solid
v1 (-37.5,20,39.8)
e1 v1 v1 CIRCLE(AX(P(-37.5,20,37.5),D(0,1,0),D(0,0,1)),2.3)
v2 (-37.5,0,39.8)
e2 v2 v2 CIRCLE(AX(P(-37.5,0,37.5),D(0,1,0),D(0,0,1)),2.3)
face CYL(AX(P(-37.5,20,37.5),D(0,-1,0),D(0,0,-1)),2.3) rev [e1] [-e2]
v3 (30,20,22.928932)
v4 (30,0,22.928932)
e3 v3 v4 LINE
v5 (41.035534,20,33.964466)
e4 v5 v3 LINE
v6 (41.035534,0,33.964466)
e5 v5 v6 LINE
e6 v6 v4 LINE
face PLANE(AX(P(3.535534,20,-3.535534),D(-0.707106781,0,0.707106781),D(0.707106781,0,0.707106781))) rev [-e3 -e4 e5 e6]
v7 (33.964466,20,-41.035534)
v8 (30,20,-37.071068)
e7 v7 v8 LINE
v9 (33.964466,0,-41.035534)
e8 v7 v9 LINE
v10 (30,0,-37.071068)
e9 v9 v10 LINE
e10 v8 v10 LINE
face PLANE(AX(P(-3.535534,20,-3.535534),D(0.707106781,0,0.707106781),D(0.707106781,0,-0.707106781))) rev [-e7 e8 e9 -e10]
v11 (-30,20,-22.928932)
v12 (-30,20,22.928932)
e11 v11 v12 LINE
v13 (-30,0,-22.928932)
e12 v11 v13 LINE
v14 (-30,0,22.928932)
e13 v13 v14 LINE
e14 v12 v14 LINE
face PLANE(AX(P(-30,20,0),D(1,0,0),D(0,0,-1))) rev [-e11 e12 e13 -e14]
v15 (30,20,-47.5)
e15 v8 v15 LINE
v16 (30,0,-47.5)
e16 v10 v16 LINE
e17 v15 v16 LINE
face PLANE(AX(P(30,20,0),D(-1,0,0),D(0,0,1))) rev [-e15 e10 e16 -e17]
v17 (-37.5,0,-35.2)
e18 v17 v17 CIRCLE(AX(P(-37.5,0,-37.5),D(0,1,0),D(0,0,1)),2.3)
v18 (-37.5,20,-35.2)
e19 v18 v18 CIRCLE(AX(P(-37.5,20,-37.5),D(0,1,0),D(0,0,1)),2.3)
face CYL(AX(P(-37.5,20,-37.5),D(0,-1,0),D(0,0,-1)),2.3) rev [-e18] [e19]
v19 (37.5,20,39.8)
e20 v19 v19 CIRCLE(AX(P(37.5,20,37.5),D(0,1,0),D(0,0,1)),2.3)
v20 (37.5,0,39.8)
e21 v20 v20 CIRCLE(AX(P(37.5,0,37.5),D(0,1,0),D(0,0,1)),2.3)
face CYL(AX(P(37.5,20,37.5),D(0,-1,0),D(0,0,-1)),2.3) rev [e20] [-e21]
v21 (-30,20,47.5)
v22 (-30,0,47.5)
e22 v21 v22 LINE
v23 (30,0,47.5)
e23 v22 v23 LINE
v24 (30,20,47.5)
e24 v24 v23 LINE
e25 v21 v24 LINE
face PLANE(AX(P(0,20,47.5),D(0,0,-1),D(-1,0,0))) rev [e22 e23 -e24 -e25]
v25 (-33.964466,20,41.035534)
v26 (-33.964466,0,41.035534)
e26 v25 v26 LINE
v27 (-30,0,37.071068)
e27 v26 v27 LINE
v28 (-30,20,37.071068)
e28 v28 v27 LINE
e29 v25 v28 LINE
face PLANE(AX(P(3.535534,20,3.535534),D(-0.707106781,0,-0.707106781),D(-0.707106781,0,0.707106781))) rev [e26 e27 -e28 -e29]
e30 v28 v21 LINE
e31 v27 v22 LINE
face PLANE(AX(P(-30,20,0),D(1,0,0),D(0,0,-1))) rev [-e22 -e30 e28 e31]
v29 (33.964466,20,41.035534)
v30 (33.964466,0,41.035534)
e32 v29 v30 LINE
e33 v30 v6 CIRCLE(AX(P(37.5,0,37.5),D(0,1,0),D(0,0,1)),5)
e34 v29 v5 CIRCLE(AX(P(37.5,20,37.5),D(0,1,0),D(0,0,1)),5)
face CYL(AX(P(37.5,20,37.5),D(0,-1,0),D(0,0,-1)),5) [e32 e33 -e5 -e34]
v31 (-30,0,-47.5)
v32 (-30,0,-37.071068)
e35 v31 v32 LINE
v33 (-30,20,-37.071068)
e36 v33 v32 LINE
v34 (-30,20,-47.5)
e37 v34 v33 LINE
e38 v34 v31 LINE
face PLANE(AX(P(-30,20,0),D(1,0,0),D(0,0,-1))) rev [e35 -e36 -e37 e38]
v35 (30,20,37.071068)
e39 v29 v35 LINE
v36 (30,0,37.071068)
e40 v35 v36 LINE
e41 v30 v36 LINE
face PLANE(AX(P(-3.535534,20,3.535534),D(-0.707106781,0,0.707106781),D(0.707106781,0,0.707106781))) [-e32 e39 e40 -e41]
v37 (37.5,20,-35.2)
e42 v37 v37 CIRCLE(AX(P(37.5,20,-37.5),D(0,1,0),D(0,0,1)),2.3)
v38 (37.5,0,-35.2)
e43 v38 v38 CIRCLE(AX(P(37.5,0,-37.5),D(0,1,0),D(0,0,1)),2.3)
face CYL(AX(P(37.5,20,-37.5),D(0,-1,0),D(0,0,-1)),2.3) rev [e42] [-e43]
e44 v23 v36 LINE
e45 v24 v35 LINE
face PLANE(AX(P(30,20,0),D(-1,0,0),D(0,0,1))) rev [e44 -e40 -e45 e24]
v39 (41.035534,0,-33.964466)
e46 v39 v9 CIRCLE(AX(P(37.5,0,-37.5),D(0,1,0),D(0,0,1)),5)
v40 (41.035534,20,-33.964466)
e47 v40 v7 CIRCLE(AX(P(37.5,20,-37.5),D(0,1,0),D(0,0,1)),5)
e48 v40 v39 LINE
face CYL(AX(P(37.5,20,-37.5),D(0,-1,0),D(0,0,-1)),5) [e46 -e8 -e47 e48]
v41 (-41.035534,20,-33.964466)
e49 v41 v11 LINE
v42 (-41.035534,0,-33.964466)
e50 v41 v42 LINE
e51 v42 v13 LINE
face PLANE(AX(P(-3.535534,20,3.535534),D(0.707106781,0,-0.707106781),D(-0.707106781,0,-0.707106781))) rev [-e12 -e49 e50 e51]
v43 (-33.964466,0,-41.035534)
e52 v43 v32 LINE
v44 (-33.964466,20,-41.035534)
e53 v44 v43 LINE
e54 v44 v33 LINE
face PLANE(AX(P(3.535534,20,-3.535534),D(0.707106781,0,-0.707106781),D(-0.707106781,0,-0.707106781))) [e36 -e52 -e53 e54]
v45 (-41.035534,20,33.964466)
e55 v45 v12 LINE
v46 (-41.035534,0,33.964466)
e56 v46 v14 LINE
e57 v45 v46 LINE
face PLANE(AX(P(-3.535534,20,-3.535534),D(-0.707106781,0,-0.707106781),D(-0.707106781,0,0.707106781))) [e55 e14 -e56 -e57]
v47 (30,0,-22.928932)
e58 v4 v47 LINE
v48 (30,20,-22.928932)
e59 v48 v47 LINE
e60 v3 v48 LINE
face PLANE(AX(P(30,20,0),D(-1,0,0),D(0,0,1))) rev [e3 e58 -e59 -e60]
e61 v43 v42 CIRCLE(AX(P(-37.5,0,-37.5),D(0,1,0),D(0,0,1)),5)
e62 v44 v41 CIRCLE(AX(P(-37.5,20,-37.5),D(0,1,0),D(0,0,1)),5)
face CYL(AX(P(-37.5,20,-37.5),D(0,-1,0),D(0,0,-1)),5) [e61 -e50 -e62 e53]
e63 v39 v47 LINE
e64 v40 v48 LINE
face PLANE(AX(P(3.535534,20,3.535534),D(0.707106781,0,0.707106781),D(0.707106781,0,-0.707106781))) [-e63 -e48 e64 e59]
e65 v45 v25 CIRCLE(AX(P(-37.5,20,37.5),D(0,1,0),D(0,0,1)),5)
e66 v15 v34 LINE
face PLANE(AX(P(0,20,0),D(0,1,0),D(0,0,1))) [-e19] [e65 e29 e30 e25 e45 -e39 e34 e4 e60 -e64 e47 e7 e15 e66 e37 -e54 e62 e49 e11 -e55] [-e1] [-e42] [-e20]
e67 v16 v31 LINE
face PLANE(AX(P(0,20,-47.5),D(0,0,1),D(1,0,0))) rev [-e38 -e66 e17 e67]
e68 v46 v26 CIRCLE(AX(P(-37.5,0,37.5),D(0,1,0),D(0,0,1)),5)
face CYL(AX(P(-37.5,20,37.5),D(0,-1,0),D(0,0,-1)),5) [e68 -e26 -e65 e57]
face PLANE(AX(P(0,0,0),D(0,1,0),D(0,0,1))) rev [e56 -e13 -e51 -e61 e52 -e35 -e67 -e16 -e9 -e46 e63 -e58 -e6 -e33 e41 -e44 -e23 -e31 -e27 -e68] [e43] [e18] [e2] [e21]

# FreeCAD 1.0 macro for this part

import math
import FreeCAD as App
import Part
import Sketcher

V = App.Vector
Q = App.Units.Quantity

doc = App.newDocument("Part")
body = doc.addObject("PartDesign::Body", "Body")

# Sketch on XZ plane
sketch1 = body.newObject("Sketcher::SketchObject", "Sketch")
sketch1.AttachmentSupport = (doc.getObject("XZ_Plane"), [""])
sketch1.MapMode = "FlatFace"
sketch1.addGeometry([
    Part.LineSegment(V(-30, -22.9, 0), V(-30, 22.9, 0)),  # 0
    Part.LineSegment(V(-30, 22.9, 0), V(-41, 34, 0)),  # 1
    Part.ArcOfCircle(Part.Circle(V(-37.5, 37.5, 0), V(0, 0, 1), 5), math.radians(45), math.radians(225)),  # 2
    Part.LineSegment(V(-34, 41, 0), V(-30, 37.1, 0)),  # 3
    Part.LineSegment(V(-30, 37.1, 0), V(-30, 47.5, 0)),  # 4
    Part.LineSegment(V(-30, 47.5, 0), V(30, 47.5, 0)),  # 5
    Part.LineSegment(V(30, 47.5, 0), V(30, 37.1, 0)),  # 6
    Part.LineSegment(V(30, 37.1, 0), V(34, 41, 0)),  # 7
    Part.ArcOfCircle(Part.Circle(V(37.5, 37.5, 0), V(0, 0, 1), 5), math.radians(0), math.radians(135)),  # 8
    Part.ArcOfCircle(Part.Circle(V(37.5, 37.5, 0), V(0, 0, 1), 5), math.radians(-45), math.radians(0)),  # 9
    Part.LineSegment(V(41, 34, 0), V(30, 22.9, 0)),  # 10
    Part.LineSegment(V(30, 22.9, 0), V(30, -22.9, 0)),  # 11
    Part.LineSegment(V(30, -22.9, 0), V(41, -34, 0)),  # 12
    Part.ArcOfCircle(Part.Circle(V(37.5, -37.5, 0), V(0, 0, 1), 5), math.radians(0), math.radians(45)),  # 13
    Part.ArcOfCircle(Part.Circle(V(37.5, -37.5, 0), V(0, 0, 1), 5), math.radians(-135), math.radians(0)),  # 14
    Part.LineSegment(V(34, -41, 0), V(30, -37.1, 0)),  # 15
    Part.LineSegment(V(30, -37.1, 0), V(30, -47.5, 0)),  # 16
    Part.LineSegment(V(30, -47.5, 0), V(-30, -47.5, 0)),  # 17
    Part.LineSegment(V(-30, -47.5, 0), V(-30, -37.1, 0)),  # 18
    Part.LineSegment(V(-30, -37.1, 0), V(-34, -41, 0)),  # 19
    Part.ArcOfCircle(Part.Circle(V(-37.5, -37.5, 0), V(0, 0, 1), 5), math.radians(135), math.radians(315)),  # 20
    Part.LineSegment(V(-41, -34, 0), V(-30, -22.9, 0)),  # 21
    Part.ArcOfCircle(Part.Circle(V(-37.5, -37.5, 0), V(0, 0, 1), 2.3), math.radians(0), math.radians(135)),  # 22
    Part.ArcOfCircle(Part.Circle(V(-37.5, -37.5, 0), V(0, 0, 1), 2.3), math.radians(135), math.radians(315)),  # 23
    Part.ArcOfCircle(Part.Circle(V(-37.5, -37.5, 0), V(0, 0, 1), 2.3), math.radians(-45), math.radians(0)),  # 24
    Part.ArcOfCircle(Part.Circle(V(-37.5, 37.5, 0), V(0, 0, 1), 2.3), math.radians(0), math.radians(45)),  # 25
    Part.ArcOfCircle(Part.Circle(V(-37.5, 37.5, 0), V(0, 0, 1), 2.3), math.radians(45), math.radians(225)),  # 26
    Part.ArcOfCircle(Part.Circle(V(-37.5, 37.5, 0), V(0, 0, 1), 2.3), math.radians(-135), math.radians(0)),  # 27
    Part.ArcOfCircle(Part.Circle(V(37.5, 37.5, 0), V(0, 0, 1), 2.3), math.radians(0), math.radians(135)),  # 28
    Part.ArcOfCircle(Part.Circle(V(37.5, 37.5, 0), V(0, 0, 1), 2.3), math.radians(135), math.radians(315)),  # 29
    Part.ArcOfCircle(Part.Circle(V(37.5, 37.5, 0), V(0, 0, 1), 2.3), math.radians(-45), math.radians(0)),  # 30
    Part.ArcOfCircle(Part.Circle(V(37.5, -37.5, 0), V(0, 0, 1), 2.3), math.radians(45), math.radians(225)),  # 31
    Part.ArcOfCircle(Part.Circle(V(37.5, -37.5, 0), V(0, 0, 1), 2.3), math.radians(-135), math.radians(0)),  # 32
    Part.ArcOfCircle(Part.Circle(V(37.5, -37.5, 0), V(0, 0, 1), 2.3), math.radians(0), math.radians(45)),  # 33
], False)
sketch1.addConstraint([
    Sketcher.Constraint("Coincident", 0, 2, 1, 1),
    Sketcher.Constraint("Tangent", 1, 2, 2, 2),
    Sketcher.Constraint("Tangent", 2, 1, 3, 1),
    Sketcher.Constraint("Coincident", 3, 2, 4, 1),
    Sketcher.Constraint("Coincident", 4, 2, 5, 1),
    Sketcher.Constraint("Coincident", 5, 2, 6, 1),
    Sketcher.Constraint("Coincident", 6, 2, 7, 1),
    Sketcher.Constraint("Tangent", 7, 2, 8, 2),
    Sketcher.Constraint("Tangent", 8, 1, 9, 2),
    Sketcher.Constraint("Tangent", 9, 1, 10, 1),
    Sketcher.Constraint("Coincident", 10, 2, 11, 1),
    Sketcher.Constraint("Coincident", 11, 2, 12, 1),
    Sketcher.Constraint("Tangent", 12, 2, 13, 2),
    Sketcher.Constraint("Tangent", 13, 1, 14, 2),
    Sketcher.Constraint("Tangent", 14, 1, 15, 1),
    Sketcher.Constraint("Coincident", 15, 2, 16, 1),
    Sketcher.Constraint("Coincident", 16, 2, 17, 1),
    Sketcher.Constraint("Coincident", 17, 2, 18, 1),
    Sketcher.Constraint("Coincident", 18, 2, 19, 1),
    Sketcher.Constraint("Tangent", 19, 2, 20, 2),
    Sketcher.Constraint("Tangent", 20, 1, 21, 1),
    Sketcher.Constraint("Coincident", 21, 2, 0, 1),
    Sketcher.Constraint("Tangent", 22, 2, 23, 1),
    Sketcher.Constraint("Tangent", 23, 2, 24, 1),
    Sketcher.Constraint("Tangent", 24, 2, 22, 1),
    Sketcher.Constraint("Tangent", 25, 2, 26, 1),
    Sketcher.Constraint("Tangent", 26, 2, 27, 1),
    Sketcher.Constraint("Tangent", 27, 2, 25, 1),
    Sketcher.Constraint("Tangent", 28, 2, 29, 1),
    Sketcher.Constraint("Tangent", 29, 2, 30, 1),
    Sketcher.Constraint("Tangent", 30, 2, 28, 1),
    Sketcher.Constraint("Tangent", 31, 2, 32, 1),
    Sketcher.Constraint("Tangent", 32, 2, 33, 1),
    Sketcher.Constraint("Tangent", 33, 2, 31, 1),
    Sketcher.Constraint("Vertical", 0),
    Sketcher.Constraint("Vertical", 4),
    Sketcher.Constraint("Horizontal", 5),
    Sketcher.Constraint("Vertical", 6),
    Sketcher.Constraint("Vertical", 11),
    Sketcher.Constraint("Vertical", 16),
    Sketcher.Constraint("Horizontal", 17),
    Sketcher.Constraint("Vertical", 18),
    Sketcher.Constraint("Coincident", 22, 3, 20, 3),
    Sketcher.Constraint("Coincident", 25, 3, 2, 3),
    Sketcher.Constraint("Coincident", 28, 3, 8, 3),
    Sketcher.Constraint("Coincident", 31, 3, 13, 3),
    Sketcher.Constraint("Equal", 2, 8),
    Sketcher.Constraint("Equal", 8, 9),
    Sketcher.Constraint("Equal", 9, 13),
    Sketcher.Constraint("Equal", 13, 14),
    Sketcher.Constraint("Equal", 14, 20),
    Sketcher.Constraint("Equal", 24, 25),
    Sketcher.Constraint("Equal", 27, 28),
    Sketcher.Constraint("Equal", 30, 31),
    Sketcher.Constraint("Symmetric", 2, 3, 13, 3, -1, 1),
    Sketcher.Constraint("Symmetric", 8, 3, 20, 3, -1, 1),
    Sketcher.Constraint("Symmetric", 0, 2, 11, 2, -1, 1),
    Sketcher.Constraint("Symmetric", 3, 2, 15, 2, -1, 1),
    Sketcher.Constraint("Symmetric", 5, 2, 17, 2, -1, 1),
    Sketcher.Constraint("Symmetric", 2, 3, 8, 3, -2),
    Sketcher.Constraint("Symmetric", 3, 2, 6, 2, -2),
    Sketcher.Constraint("Parallel", 1, 3),
    Sketcher.Constraint("Perpendicular", 3, 7),
    Sketcher.Constraint("Parallel", 7, 10),
    Sketcher.Constraint("Perpendicular", 15, 19),
    Sketcher.Constraint("Parallel", 19, 21),
    Sketcher.Constraint("Horizontal", 30, 3, 8, 1),
    Sketcher.Constraint("Horizontal", 33, 3, 13, 1),
    Sketcher.Constraint("Horizontal", 13, 1, 24, 2),
    Sketcher.Constraint("Horizontal", 8, 1, 27, 2),
    Sketcher.Constraint("Horizontal", 25, 2, 28, 2),
    Sketcher.Constraint("Horizontal", 26, 2, 29, 2),
    Sketcher.Constraint("Horizontal", 27, 2, 30, 2),
    Sketcher.Constraint("Horizontal", 23, 2, 31, 2),
    Sketcher.Constraint("Horizontal", 24, 2, 32, 2),
    Sketcher.Constraint("Horizontal", 22, 2, 33, 2),
    Sketcher.Constraint("Vertical", 0, 2, 3, 2),
    Sketcher.Constraint("Vertical", 23, 2, 25, 2),
    Sketcher.Constraint("Vertical", 22, 2, 26, 2),
    Sketcher.Constraint("Radius", 2, Q("5 mm")),
    Sketcher.Constraint("Radius", 22, Q("2.3 mm")),
    Sketcher.Constraint("DistanceX", 5, 1, 5, 2, Q("60 mm")),
    Sketcher.Constraint("DistanceX", 2, 3, 8, 3, Q("75 mm")),
    Sketcher.Constraint("DistanceY", 13, 3, 9, 3, Q("75 mm")),
    Sketcher.Constraint("DistanceY", 2, 3, 4, 2, Q("10 mm")),
    Sketcher.Constraint("DistanceX", 20, 1, 22, 2, Q("1.909188 mm")),
    Sketcher.Constraint("DistanceX", 23, 2, 19, 2, Q("1.909188 mm")),
])
pad1 = body.newObject("PartDesign::Pad", "Pad")
pad1.Profile = sketch1
pad1.Length = 20
pad1.Reversed = True

doc.recompute()
